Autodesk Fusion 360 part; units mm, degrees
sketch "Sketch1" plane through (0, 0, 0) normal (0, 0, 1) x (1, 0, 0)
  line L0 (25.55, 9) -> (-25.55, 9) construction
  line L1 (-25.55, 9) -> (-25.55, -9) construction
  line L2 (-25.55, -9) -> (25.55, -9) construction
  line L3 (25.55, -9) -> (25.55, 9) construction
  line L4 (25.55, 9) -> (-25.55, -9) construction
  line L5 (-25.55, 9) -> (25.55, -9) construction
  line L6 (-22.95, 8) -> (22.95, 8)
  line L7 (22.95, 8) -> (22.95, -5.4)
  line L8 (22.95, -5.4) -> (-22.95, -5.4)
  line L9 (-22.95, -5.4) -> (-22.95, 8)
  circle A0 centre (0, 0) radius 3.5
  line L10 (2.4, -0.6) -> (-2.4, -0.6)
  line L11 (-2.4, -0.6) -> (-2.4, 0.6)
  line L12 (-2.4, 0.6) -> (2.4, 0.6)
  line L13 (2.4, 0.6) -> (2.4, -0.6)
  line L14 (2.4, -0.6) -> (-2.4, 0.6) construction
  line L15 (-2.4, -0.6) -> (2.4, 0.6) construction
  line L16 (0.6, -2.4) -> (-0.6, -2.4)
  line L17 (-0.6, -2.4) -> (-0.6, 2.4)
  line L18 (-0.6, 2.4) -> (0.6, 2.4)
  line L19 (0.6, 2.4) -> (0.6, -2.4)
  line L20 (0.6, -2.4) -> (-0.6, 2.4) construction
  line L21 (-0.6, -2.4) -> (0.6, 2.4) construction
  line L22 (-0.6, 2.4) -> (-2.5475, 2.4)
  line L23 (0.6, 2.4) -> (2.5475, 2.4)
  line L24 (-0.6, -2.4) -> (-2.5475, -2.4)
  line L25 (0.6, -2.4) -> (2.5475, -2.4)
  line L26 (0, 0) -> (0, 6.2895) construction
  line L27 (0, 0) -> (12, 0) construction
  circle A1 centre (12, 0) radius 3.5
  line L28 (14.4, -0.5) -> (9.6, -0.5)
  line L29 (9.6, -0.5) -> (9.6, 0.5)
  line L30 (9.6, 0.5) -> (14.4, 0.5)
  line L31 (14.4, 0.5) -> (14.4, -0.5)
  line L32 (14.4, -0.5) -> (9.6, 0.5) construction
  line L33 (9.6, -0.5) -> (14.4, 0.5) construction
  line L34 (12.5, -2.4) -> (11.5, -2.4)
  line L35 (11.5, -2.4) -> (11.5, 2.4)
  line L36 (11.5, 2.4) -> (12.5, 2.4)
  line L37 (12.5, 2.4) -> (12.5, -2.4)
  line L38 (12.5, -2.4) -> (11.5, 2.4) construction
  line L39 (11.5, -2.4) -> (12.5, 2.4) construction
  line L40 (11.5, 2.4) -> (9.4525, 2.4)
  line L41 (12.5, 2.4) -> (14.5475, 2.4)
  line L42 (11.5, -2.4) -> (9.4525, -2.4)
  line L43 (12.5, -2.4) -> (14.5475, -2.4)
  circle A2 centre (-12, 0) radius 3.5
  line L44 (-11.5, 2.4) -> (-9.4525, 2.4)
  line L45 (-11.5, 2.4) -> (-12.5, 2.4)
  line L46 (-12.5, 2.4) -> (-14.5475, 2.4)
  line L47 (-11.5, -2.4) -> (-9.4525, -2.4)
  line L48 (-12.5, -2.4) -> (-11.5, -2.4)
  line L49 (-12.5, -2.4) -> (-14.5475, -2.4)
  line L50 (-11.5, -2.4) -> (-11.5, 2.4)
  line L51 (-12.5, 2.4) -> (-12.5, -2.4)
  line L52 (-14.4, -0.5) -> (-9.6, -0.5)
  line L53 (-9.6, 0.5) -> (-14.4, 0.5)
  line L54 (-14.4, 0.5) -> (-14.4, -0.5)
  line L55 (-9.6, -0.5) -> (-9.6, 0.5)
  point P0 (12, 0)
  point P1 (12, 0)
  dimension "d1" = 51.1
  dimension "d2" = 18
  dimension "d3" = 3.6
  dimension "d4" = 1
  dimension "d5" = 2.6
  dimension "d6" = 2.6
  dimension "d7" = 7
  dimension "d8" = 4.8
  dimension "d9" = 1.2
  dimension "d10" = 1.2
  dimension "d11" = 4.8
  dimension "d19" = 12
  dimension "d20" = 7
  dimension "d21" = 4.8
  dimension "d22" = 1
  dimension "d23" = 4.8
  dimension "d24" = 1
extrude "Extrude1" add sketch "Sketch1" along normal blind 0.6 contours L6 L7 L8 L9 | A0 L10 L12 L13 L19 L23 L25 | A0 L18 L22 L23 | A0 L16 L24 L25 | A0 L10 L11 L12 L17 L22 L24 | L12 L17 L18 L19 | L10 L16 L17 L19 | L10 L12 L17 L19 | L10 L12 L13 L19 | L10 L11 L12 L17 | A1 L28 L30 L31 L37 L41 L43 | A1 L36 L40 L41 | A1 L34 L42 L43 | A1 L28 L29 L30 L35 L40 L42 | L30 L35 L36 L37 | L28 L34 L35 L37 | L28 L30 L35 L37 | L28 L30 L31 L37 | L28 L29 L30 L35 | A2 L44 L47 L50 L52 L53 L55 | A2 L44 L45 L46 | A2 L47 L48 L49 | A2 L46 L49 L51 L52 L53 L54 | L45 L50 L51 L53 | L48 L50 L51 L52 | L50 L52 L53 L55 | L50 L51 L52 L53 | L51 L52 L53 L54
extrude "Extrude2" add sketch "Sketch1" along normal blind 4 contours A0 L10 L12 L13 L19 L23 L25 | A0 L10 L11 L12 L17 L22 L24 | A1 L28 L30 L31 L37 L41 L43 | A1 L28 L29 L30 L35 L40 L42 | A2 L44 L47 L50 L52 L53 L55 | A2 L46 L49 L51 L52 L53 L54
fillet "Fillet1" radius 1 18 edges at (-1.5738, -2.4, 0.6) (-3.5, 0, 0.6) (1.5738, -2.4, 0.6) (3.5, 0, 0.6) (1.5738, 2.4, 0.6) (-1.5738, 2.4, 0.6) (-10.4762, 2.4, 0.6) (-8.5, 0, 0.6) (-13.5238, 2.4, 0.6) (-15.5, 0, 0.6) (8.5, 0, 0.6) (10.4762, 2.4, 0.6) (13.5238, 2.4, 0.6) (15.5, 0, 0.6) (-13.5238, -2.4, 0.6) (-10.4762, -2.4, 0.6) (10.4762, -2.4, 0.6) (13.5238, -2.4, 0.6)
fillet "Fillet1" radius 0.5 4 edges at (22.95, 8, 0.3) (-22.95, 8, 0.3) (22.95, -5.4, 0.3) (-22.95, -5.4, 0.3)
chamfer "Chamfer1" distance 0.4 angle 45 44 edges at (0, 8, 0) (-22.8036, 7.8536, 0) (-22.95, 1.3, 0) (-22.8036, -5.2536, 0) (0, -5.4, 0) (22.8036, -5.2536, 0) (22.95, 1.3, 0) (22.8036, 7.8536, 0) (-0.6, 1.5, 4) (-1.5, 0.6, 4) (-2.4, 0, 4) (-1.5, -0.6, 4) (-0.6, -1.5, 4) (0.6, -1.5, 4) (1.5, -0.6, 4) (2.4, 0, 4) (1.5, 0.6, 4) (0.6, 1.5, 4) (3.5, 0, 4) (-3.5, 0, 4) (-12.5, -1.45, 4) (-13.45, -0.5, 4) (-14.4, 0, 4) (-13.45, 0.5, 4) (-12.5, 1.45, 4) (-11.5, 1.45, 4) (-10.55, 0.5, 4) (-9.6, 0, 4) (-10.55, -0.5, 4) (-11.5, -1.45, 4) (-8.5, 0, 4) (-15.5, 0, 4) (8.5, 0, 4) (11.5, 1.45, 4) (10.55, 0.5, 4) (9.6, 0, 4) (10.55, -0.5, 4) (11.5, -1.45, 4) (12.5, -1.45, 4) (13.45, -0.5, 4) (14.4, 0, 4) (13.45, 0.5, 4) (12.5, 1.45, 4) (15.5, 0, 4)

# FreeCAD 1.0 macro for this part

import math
import FreeCAD as App
import Part
import Sketcher
Q = App.Units.Quantity


def edges_at(feature, points):
    """Names of the edges that pass closest to the given points."""
    edges = feature.Shape.Edges
    near = lambda p: min(range(len(edges)), key=lambda i: edges[i].distToShape(Part.Vertex(*p))[0])
    return sorted({f"Edge{near(p) + 1}" for p in points})


def add_polygon(sketch, points):
    """Adds a closed chain of lines whose ends are joined by coincident constraints."""
    first, n = sketch.GeometryCount, len(points)
    for a, b in zip(points, points[1:] + points[:1]):
        sketch.addGeometry(Part.LineSegment(App.Vector(*a, 0), App.Vector(*b, 0)), False)
    for i in range(n):
        sketch.addConstraint(Sketcher.Constraint("Coincident", first + i, 2, first + (i + 1) % n, 1))

doc = App.newDocument("Part")
body = doc.addObject("PartDesign::Body", "Body")

sketch1 = body.newObject("Sketcher::SketchObject", "Sketch")
sketch1.AttachmentSupport = (doc.getObject("XY_Plane"), [""])
sketch1.MapMode = "FlatFace"
add_polygon(sketch1, [(23, 8), (-23, 8), (-23, -5), (23, -5)])
sketch1.addConstraint(Sketcher.Constraint("Horizontal", 0))
sketch1.addConstraint(Sketcher.Constraint("Vertical", 1))
sketch1.addConstraint(Sketcher.Constraint("Horizontal", 2))
sketch1.addConstraint(Sketcher.Constraint("Vertical", 3))
sketch1.addConstraint(Sketcher.Constraint("DistanceX", 0, 2, 0, 1, Q("45.9 mm")))
sketch1.addConstraint(Sketcher.Constraint("DistanceY", 1, 2, 1, 1, Q("13.4 mm")))
sketch1.addConstraint(Sketcher.Constraint("DistanceY", -1, 1, 0, 2, Q("8 mm")))
sketch1.addConstraint(Sketcher.Constraint("DistanceX", 0, 2, -1, 1, Q("22.95 mm")))
pad1 = body.newObject("PartDesign::Pad", "Pad")
pad1.Profile = sketch1
pad1.Length = 0.6

sketch2 = body.newObject("Sketcher::SketchObject", "Sketch001")
sketch2.AttachmentSupport = (doc.getObject("XY_Plane"), [""])
sketch2.MapMode = "FlatFace"
sketch2.addGeometry(Part.ArcOfCircle(Part.Circle(App.Vector(0, 0, 0), App.Vector(0, 0, 1), 3.5), math.radians(-43), math.radians(43)), False)
sketch2.addGeometry(Part.LineSegment(App.Vector(2.5, 2.4, 0), App.Vector(0.6, 2.4, 0)), False)
sketch2.addGeometry(Part.LineSegment(App.Vector(0.6, 2.4, 0), App.Vector(0.6, 0.6, 0)), False)
sketch2.addGeometry(Part.LineSegment(App.Vector(0.6, 0.6, 0), App.Vector(2.4, 0.6, 0)), False)
sketch2.addGeometry(Part.LineSegment(App.Vector(2.4, 0.6, 0), App.Vector(2.4, -0.6, 0)), False)
sketch2.addGeometry(Part.LineSegment(App.Vector(2.4, -0.6, 0), App.Vector(0.6, -0.6, 0)), False)
sketch2.addGeometry(Part.LineSegment(App.Vector(0.6, -0.6, 0), App.Vector(0.6, -2.4, 0)), False)
sketch2.addGeometry(Part.LineSegment(App.Vector(0.6, -2.4, 0), App.Vector(2.5, -2.4, 0)), False)
sketch2.addGeometry(Part.LineSegment(App.Vector(-0.6, 2.4, 0), App.Vector(-2.5, 2.4, 0)), False)
sketch2.addGeometry(Part.ArcOfCircle(Part.Circle(App.Vector(0, 0, 0), App.Vector(0, 0, 1), 3.5), math.radians(137), math.radians(223)), False)
sketch2.addGeometry(Part.LineSegment(App.Vector(-2.5, -2.4, 0), App.Vector(-0.6, -2.4, 0)), False)
sketch2.addGeometry(Part.LineSegment(App.Vector(-0.6, -2.4, 0), App.Vector(-0.6, -0.6, 0)), False)
sketch2.addGeometry(Part.LineSegment(App.Vector(-0.6, -0.6, 0), App.Vector(-2.4, -0.6, 0)), False)
sketch2.addGeometry(Part.LineSegment(App.Vector(-2.4, -0.6, 0), App.Vector(-2.4, 0.6, 0)), False)
sketch2.addGeometry(Part.LineSegment(App.Vector(-2.4, 0.6, 0), App.Vector(-0.6, 0.6, 0)), False)
sketch2.addGeometry(Part.LineSegment(App.Vector(-0.6, 0.6, 0), App.Vector(-0.6, 2.4, 0)), False)
sketch2.addGeometry(Part.ArcOfCircle(Part.Circle(App.Vector(12, 0, 0), App.Vector(0, 0, 1), 3.5), math.radians(-43), math.radians(43)), False)
sketch2.addGeometry(Part.LineSegment(App.Vector(14.5, 2.4, 0), App.Vector(12.5, 2.4, 0)), False)
sketch2.addGeometry(Part.LineSegment(App.Vector(12.5, 2.4, 0), App.Vector(12.5, 0.5, 0)), False)
sketch2.addGeometry(Part.LineSegment(App.Vector(12.5, 0.5, 0), App.Vector(14.4, 0.5, 0)), False)
sketch2.addGeometry(Part.LineSegment(App.Vector(14.4, 0.5, 0), App.Vector(14.4, -0.5, 0)), False)
sketch2.addGeometry(Part.LineSegment(App.Vector(14.4, -0.5, 0), App.Vector(12.5, -0.5, 0)), False)
sketch2.addGeometry(Part.LineSegment(App.Vector(12.5, -0.5, 0), App.Vector(12.5, -2.4, 0)), False)
sketch2.addGeometry(Part.LineSegment(App.Vector(12.5, -2.4, 0), App.Vector(14.5, -2.4, 0)), False)
sketch2.addGeometry(Part.LineSegment(App.Vector(11.5, 2.4, 0), App.Vector(9.5, 2.4, 0)), False)
sketch2.addGeometry(Part.ArcOfCircle(Part.Circle(App.Vector(12, 0, 0), App.Vector(0, 0, 1), 3.5), math.radians(137), math.radians(223)), False)
sketch2.addGeometry(Part.LineSegment(App.Vector(9.5, -2.4, 0), App.Vector(11.5, -2.4, 0)), False)
sketch2.addGeometry(Part.LineSegment(App.Vector(11.5, -2.4, 0), App.Vector(11.5, -0.5, 0)), False)
sketch2.addGeometry(Part.LineSegment(App.Vector(11.5, -0.5, 0), App.Vector(9.6, -0.5, 0)), False)
sketch2.addGeometry(Part.LineSegment(App.Vector(9.6, -0.5, 0), App.Vector(9.6, 0.5, 0)), False)
sketch2.addGeometry(Part.LineSegment(App.Vector(9.6, 0.5, 0), App.Vector(11.5, 0.5, 0)), False)
sketch2.addGeometry(Part.LineSegment(App.Vector(11.5, 0.5, 0), App.Vector(11.5, 2.4, 0)), False)
sketch2.addGeometry(Part.ArcOfCircle(Part.Circle(App.Vector(-12, 0, 0), App.Vector(0, 0, 1), 3.5), math.radians(-43), math.radians(43)), False)
sketch2.addGeometry(Part.LineSegment(App.Vector(-9.5, 2.4, 0), App.Vector(-11.5, 2.4, 0)), False)
sketch2.addGeometry(Part.LineSegment(App.Vector(-11.5, 2.4, 0), App.Vector(-11.5, 0.5, 0)), False)
sketch2.addGeometry(Part.LineSegment(App.Vector(-11.5, 0.5, 0), App.Vector(-9.6, 0.5, 0)), False)
sketch2.addGeometry(Part.LineSegment(App.Vector(-9.6, 0.5, 0), App.Vector(-9.6, -0.5, 0)), False)
sketch2.addGeometry(Part.LineSegment(App.Vector(-9.6, -0.5, 0), App.Vector(-11.5, -0.5, 0)), False)
sketch2.addGeometry(Part.LineSegment(App.Vector(-11.5, -0.5, 0), App.Vector(-11.5, -2.4, 0)), False)
sketch2.addGeometry(Part.LineSegment(App.Vector(-11.5, -2.4, 0), App.Vector(-9.5, -2.4, 0)), False)
sketch2.addGeometry(Part.LineSegment(App.Vector(-12.5, 2.4, 0), App.Vector(-14.5, 2.4, 0)), False)
sketch2.addGeometry(Part.ArcOfCircle(Part.Circle(App.Vector(-12, 0, 0), App.Vector(0, 0, 1), 3.5), math.radians(137), math.radians(223)), False)
sketch2.addGeometry(Part.LineSegment(App.Vector(-14.5, -2.4, 0), App.Vector(-12.5, -2.4, 0)), False)
sketch2.addGeometry(Part.LineSegment(App.Vector(-12.5, -2.4, 0), App.Vector(-12.5, -0.5, 0)), False)
sketch2.addGeometry(Part.LineSegment(App.Vector(-12.5, -0.5, 0), App.Vector(-14.4, -0.5, 0)), False)
sketch2.addGeometry(Part.LineSegment(App.Vector(-14.4, -0.5, 0), App.Vector(-14.4, 0.5, 0)), False)
sketch2.addGeometry(Part.LineSegment(App.Vector(-14.4, 0.5, 0), App.Vector(-12.5, 0.5, 0)), False)
sketch2.addGeometry(Part.LineSegment(App.Vector(-12.5, 0.5, 0), App.Vector(-12.5, 2.4, 0)), False)
sketch2.addConstraint(Sketcher.Constraint("Coincident", 0, 2, 1, 1))
sketch2.addConstraint(Sketcher.Constraint("Coincident", 1, 2, 2, 1))
sketch2.addConstraint(Sketcher.Constraint("Coincident", 2, 2, 3, 1))
sketch2.addConstraint(Sketcher.Constraint("Coincident", 3, 2, 4, 1))
sketch2.addConstraint(Sketcher.Constraint("Coincident", 4, 2, 5, 1))
sketch2.addConstraint(Sketcher.Constraint("Coincident", 5, 2, 6, 1))
sketch2.addConstraint(Sketcher.Constraint("Coincident", 6, 2, 7, 1))
sketch2.addConstraint(Sketcher.Constraint("Coincident", 7, 2, 0, 1))
sketch2.addConstraint(Sketcher.Constraint("Coincident", 8, 2, 9, 1))
sketch2.addConstraint(Sketcher.Constraint("Coincident", 9, 2, 10, 1))
sketch2.addConstraint(Sketcher.Constraint("Coincident", 10, 2, 11, 1))
sketch2.addConstraint(Sketcher.Constraint("Coincident", 11, 2, 12, 1))
sketch2.addConstraint(Sketcher.Constraint("Coincident", 12, 2, 13, 1))
sketch2.addConstraint(Sketcher.Constraint("Coincident", 13, 2, 14, 1))
sketch2.addConstraint(Sketcher.Constraint("Coincident", 14, 2, 15, 1))
sketch2.addConstraint(Sketcher.Constraint("Coincident", 15, 2, 8, 1))
sketch2.addConstraint(Sketcher.Constraint("Coincident", 16, 2, 17, 1))
sketch2.addConstraint(Sketcher.Constraint("Coincident", 17, 2, 18, 1))
sketch2.addConstraint(Sketcher.Constraint("Coincident", 18, 2, 19, 1))
sketch2.addConstraint(Sketcher.Constraint("Coincident", 19, 2, 20, 1))
sketch2.addConstraint(Sketcher.Constraint("Coincident", 20, 2, 21, 1))
sketch2.addConstraint(Sketcher.Constraint("Coincident", 21, 2, 22, 1))
sketch2.addConstraint(Sketcher.Constraint("Coincident", 22, 2, 23, 1))
sketch2.addConstraint(Sketcher.Constraint("Coincident", 23, 2, 16, 1))
sketch2.addConstraint(Sketcher.Constraint("Coincident", 24, 2, 25, 1))
sketch2.addConstraint(Sketcher.Constraint("Coincident", 25, 2, 26, 1))
sketch2.addConstraint(Sketcher.Constraint("Coincident", 26, 2, 27, 1))
sketch2.addConstraint(Sketcher.Constraint("Coincident", 27, 2, 28, 1))
sketch2.addConstraint(Sketcher.Constraint("Coincident", 28, 2, 29, 1))
sketch2.addConstraint(Sketcher.Constraint("Coincident", 29, 2, 30, 1))
sketch2.addConstraint(Sketcher.Constraint("Coincident", 30, 2, 31, 1))
sketch2.addConstraint(Sketcher.Constraint("Coincident", 31, 2, 24, 1))
sketch2.addConstraint(Sketcher.Constraint("Coincident", 32, 2, 33, 1))
sketch2.addConstraint(Sketcher.Constraint("Coincident", 33, 2, 34, 1))
sketch2.addConstraint(Sketcher.Constraint("Coincident", 34, 2, 35, 1))
sketch2.addConstraint(Sketcher.Constraint("Coincident", 35, 2, 36, 1))
sketch2.addConstraint(Sketcher.Constraint("Coincident", 36, 2, 37, 1))
sketch2.addConstraint(Sketcher.Constraint("Coincident", 37, 2, 38, 1))
sketch2.addConstraint(Sketcher.Constraint("Coincident", 38, 2, 39, 1))
sketch2.addConstraint(Sketcher.Constraint("Coincident", 39, 2, 32, 1))
sketch2.addConstraint(Sketcher.Constraint("Coincident", 40, 2, 41, 1))
sketch2.addConstraint(Sketcher.Constraint("Coincident", 41, 2, 42, 1))
sketch2.addConstraint(Sketcher.Constraint("Coincident", 42, 2, 43, 1))
sketch2.addConstraint(Sketcher.Constraint("Coincident", 43, 2, 44, 1))
sketch2.addConstraint(Sketcher.Constraint("Coincident", 44, 2, 45, 1))
sketch2.addConstraint(Sketcher.Constraint("Coincident", 45, 2, 46, 1))
sketch2.addConstraint(Sketcher.Constraint("Coincident", 46, 2, 47, 1))
sketch2.addConstraint(Sketcher.Constraint("Coincident", 47, 2, 40, 1))
sketch2.addConstraint(Sketcher.Constraint("Horizontal", 1))
sketch2.addConstraint(Sketcher.Constraint("Vertical", 2))
sketch2.addConstraint(Sketcher.Constraint("Horizontal", 3))
sketch2.addConstraint(Sketcher.Constraint("Vertical", 4))
sketch2.addConstraint(Sketcher.Constraint("Horizontal", 5))
sketch2.addConstraint(Sketcher.Constraint("Vertical", 6))
sketch2.addConstraint(Sketcher.Constraint("Horizontal", 7))
sketch2.addConstraint(Sketcher.Constraint("Horizontal", 8))
sketch2.addConstraint(Sketcher.Constraint("Horizontal", 10))
sketch2.addConstraint(Sketcher.Constraint("Vertical", 11))
sketch2.addConstraint(Sketcher.Constraint("Horizontal", 12))
sketch2.addConstraint(Sketcher.Constraint("Vertical", 13))
sketch2.addConstraint(Sketcher.Constraint("Horizontal", 14))
sketch2.addConstraint(Sketcher.Constraint("Vertical", 15))
sketch2.addConstraint(Sketcher.Constraint("Horizontal", 17))
sketch2.addConstraint(Sketcher.Constraint("Vertical", 18))
sketch2.addConstraint(Sketcher.Constraint("Horizontal", 19))
sketch2.addConstraint(Sketcher.Constraint("Vertical", 20))
sketch2.addConstraint(Sketcher.Constraint("Horizontal", 21))
sketch2.addConstraint(Sketcher.Constraint("Vertical", 22))
sketch2.addConstraint(Sketcher.Constraint("Horizontal", 23))
sketch2.addConstraint(Sketcher.Constraint("Horizontal", 24))
sketch2.addConstraint(Sketcher.Constraint("Horizontal", 26))
sketch2.addConstraint(Sketcher.Constraint("Vertical", 27))
sketch2.addConstraint(Sketcher.Constraint("Horizontal", 28))
sketch2.addConstraint(Sketcher.Constraint("Vertical", 29))
sketch2.addConstraint(Sketcher.Constraint("Horizontal", 30))
sketch2.addConstraint(Sketcher.Constraint("Vertical", 31))
sketch2.addConstraint(Sketcher.Constraint("Horizontal", 33))
sketch2.addConstraint(Sketcher.Constraint("Vertical", 34))
sketch2.addConstraint(Sketcher.Constraint("Horizontal", 35))
sketch2.addConstraint(Sketcher.Constraint("Vertical", 36))
sketch2.addConstraint(Sketcher.Constraint("Horizontal", 37))
sketch2.addConstraint(Sketcher.Constraint("Vertical", 38))
sketch2.addConstraint(Sketcher.Constraint("Horizontal", 39))
sketch2.addConstraint(Sketcher.Constraint("Horizontal", 40))
sketch2.addConstraint(Sketcher.Constraint("Horizontal", 42))
sketch2.addConstraint(Sketcher.Constraint("Vertical", 43))
sketch2.addConstraint(Sketcher.Constraint("Horizontal", 44))
sketch2.addConstraint(Sketcher.Constraint("Vertical", 45))
sketch2.addConstraint(Sketcher.Constraint("Horizontal", 46))
sketch2.addConstraint(Sketcher.Constraint("Vertical", 47))
sketch2.addConstraint(Sketcher.Constraint("Coincident", 0, 3, -1, 1))
sketch2.addConstraint(Sketcher.Constraint("Coincident", 9, 3, -1, 1))
sketch2.addConstraint(Sketcher.Constraint("Coincident", 25, 3, 16, 3))
sketch2.addConstraint(Sketcher.Constraint("Coincident", 41, 3, 32, 3))
sketch2.addConstraint(Sketcher.Constraint("Equal", 0, 9))
sketch2.addConstraint(Sketcher.Constraint("Equal", 9, 16))
sketch2.addConstraint(Sketcher.Constraint("Equal", 16, 25))
sketch2.addConstraint(Sketcher.Constraint("Equal", 25, 32))
sketch2.addConstraint(Sketcher.Constraint("Equal", 32, 41))
sketch2.addConstraint(Sketcher.Constraint("Symmetric", 16, 3, 32, 3, -1, 1))
sketch2.addConstraint(Sketcher.Constraint("Symmetric", 1, 2, 10, 2, -1, 1))
sketch2.addConstraint(Sketcher.Constraint("Symmetric", 3, 2, 12, 2, -1, 1))
sketch2.addConstraint(Sketcher.Constraint("Symmetric", 5, 2, 14, 2, -1, 1))
sketch2.addConstraint(Sketcher.Constraint("Symmetric", 26, 2, 33, 2, -1, 1))
sketch2.addConstraint(Sketcher.Constraint("Symmetric", 28, 2, 35, 2, -1, 1))
sketch2.addConstraint(Sketcher.Constraint("Symmetric", 30, 2, 37, 2, -1, 1))
sketch2.addConstraint(Sketcher.Constraint("Symmetric", 17, 2, 42, 2, -1, 1))
sketch2.addConstraint(Sketcher.Constraint("Symmetric", 19, 2, 44, 2, -1, 1))
sketch2.addConstraint(Sketcher.Constraint("Symmetric", 21, 2, 46, 2, -1, 1))
sketch2.addConstraint(Sketcher.Constraint("Symmetric", 6, 2, 10, 2, -2))
sketch2.addConstraint(Sketcher.Constraint("Symmetric", 24, 2, 32, 2, -2))
sketch2.addConstraint(Sketcher.Constraint("Symmetric", 30, 2, 34, 2, -2))
sketch2.addConstraint(Sketcher.Constraint("Symmetric", 22, 2, 42, 2, -2))
sketch2.addConstraint(Sketcher.Constraint("Horizontal", 1, 2, 8, 2))
sketch2.addConstraint(Sketcher.Constraint("Horizontal", 5, 2, 11, 2))
sketch2.addConstraint(Sketcher.Constraint("Horizontal", 15, 2, 16, 2))
sketch2.addConstraint(Sketcher.Constraint("Horizontal", 17, 2, 24, 2))
sketch2.addConstraint(Sketcher.Constraint("Horizontal", 21, 2, 27, 2))
sketch2.addConstraint(Sketcher.Constraint("Horizontal", 19, 2, 29, 2))
sketch2.addConstraint(Sketcher.Constraint("Horizontal", 26, 2, 38, 2))
sketch2.addConstraint(Sketcher.Constraint("Horizontal", 33, 2, 40, 2))
sketch2.addConstraint(Sketcher.Constraint("Equal", 23, 24))
sketch2.addConstraint(Sketcher.Constraint("Equal", 21, 28))
sketch2.addConstraint(Sketcher.Constraint("Equal", 14, 2))
sketch2.addConstraint(Sketcher.Constraint("Equal", 46, 18))
sketch2.addConstraint(Sketcher.Constraint("Radius", 0, Q("3.5 mm")))
sketch2.addConstraint(Sketcher.Constraint("DistanceY", 20, 2, 20, 1, Q("1 mm")))
sketch2.addConstraint(Sketcher.Constraint("DistanceY", 4, 2, 4, 1, Q("1.2 mm")))
sketch2.addConstraint(Sketcher.Constraint("DistanceX", -1, 1, 16, 3, Q("12 mm")))
sketch2.addConstraint(Sketcher.Constraint("DistanceX", 26, 2, 22, 2, Q("1 mm")))
sketch2.addConstraint(Sketcher.Constraint("DistanceX", 10, 2, 6, 2, Q("1.2 mm")))
sketch2.addConstraint(Sketcher.Constraint("DistanceX", 3, 1, 3, 2, Q("1.8 mm")))
pad2 = body.newObject("PartDesign::Pad", "Pad001")
pad2.Profile = sketch2
pad2.Length = 4
doc.recompute()

fillet = body.newObject("PartDesign::Fillet", "Fillet")
fillet.Base = (pad2, edges_at(pad2, [
    (-1.574, -2.4, 0.6),
    (-3.5, 0, 0.6),
    (1.574, -2.4, 0.6),
    (3.5, 0, 0.6),
    (1.574, 2.4, 0.6),
    (-1.574, 2.4, 0.6),
    (-10.476, 2.4, 0.6),
    (-8.5, 0, 0.6),
    (-13.524, 2.4, 0.6),
    (-15.5, 0, 0.6),
    (8.5, 0, 0.6),
    (10.476, 2.4, 0.6),
    (13.524, 2.4, 0.6),
    (15.5, 0, 0.6),
    (-13.524, -2.4, 0.6),
    (-10.476, -2.4, 0.6),
    (10.476, -2.4, 0.6),
    (13.524, -2.4, 0.6),
]))
fillet.Radius = 1
doc.recompute()

fillet2 = body.newObject("PartDesign::Fillet", "Fillet001")
fillet2.Base = (fillet, edges_at(fillet, [
    (22.95, 8, 0.3),
    (-22.95, 8, 0.3),
    (22.95, -5.4, 0.3),
    (-22.95, -5.4, 0.3),
]))
fillet2.Radius = 0.5
doc.recompute()

chamfer = body.newObject("PartDesign::Chamfer", "Chamfer")
chamfer.Base = (fillet2, edges_at(fillet2, [
    (0, 8, 0),
    (-22.804, 7.854, 0),
    (-22.95, 1.3, 0),
    (-22.804, -5.254, 0),
    (0, -5.4, 0),
    (22.804, -5.254, 0),
    (22.95, 1.3, 0),
    (22.804, 7.854, 0),
    (-0.6, 1.5, 4),
    (-1.5, 0.6, 4),
    (-2.4, 0, 4),
    (-1.5, -0.6, 4),
    (-0.6, -1.5, 4),
    (0.6, -1.5, 4),
    (1.5, -0.6, 4),
    (2.4, 0, 4),
    (1.5, 0.6, 4),
    (0.6, 1.5, 4),
    (3.5, 0, 4),
    (-3.5, 0, 4),
    (-12.5, -1.45, 4),
    (-13.45, -0.5, 4),
    (-14.4, 0, 4),
    (-13.45, 0.5, 4),
    (-12.5, 1.45, 4),
    (-11.5, 1.45, 4),
    (-10.55, 0.5, 4),
    (-9.6, 0, 4),
    (-10.55, -0.5, 4),
    (-11.5, -1.45, 4),
    (-8.5, 0, 4),
    (-15.5, 0, 4),
    (8.5, 0, 4),
    (11.5, 1.45, 4),
    (10.55, 0.5, 4),
    (9.6, 0, 4),
    (10.55, -0.5, 4),
    (11.5, -1.45, 4),
    (12.5, -1.45, 4),
    (13.45, -0.5, 4),
    (14.4, 0, 4),
    (13.45, 0.5, 4),
    (12.5, 1.45, 4),
    (15.5, 0, 4),
]))
chamfer.Size = 0.4

doc.recompute()
